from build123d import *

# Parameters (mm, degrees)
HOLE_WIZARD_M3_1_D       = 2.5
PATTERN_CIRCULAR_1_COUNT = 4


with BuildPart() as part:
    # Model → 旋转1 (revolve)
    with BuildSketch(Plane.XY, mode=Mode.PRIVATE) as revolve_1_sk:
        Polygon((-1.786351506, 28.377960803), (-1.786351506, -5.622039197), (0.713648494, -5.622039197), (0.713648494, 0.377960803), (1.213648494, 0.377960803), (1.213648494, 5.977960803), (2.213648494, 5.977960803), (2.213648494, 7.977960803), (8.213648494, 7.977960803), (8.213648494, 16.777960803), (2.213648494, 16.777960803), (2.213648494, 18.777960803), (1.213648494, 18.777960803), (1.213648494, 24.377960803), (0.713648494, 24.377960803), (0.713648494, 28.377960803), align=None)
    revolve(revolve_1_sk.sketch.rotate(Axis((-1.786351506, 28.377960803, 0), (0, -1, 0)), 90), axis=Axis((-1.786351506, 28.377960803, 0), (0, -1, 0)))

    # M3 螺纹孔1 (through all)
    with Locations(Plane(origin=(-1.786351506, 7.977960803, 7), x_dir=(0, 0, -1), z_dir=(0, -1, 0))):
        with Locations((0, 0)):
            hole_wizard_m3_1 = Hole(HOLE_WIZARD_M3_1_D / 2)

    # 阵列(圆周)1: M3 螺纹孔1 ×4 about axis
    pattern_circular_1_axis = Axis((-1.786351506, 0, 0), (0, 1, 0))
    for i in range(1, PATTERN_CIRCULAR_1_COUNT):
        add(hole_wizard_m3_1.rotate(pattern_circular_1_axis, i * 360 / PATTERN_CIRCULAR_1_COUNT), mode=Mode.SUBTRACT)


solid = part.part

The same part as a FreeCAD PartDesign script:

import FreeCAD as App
import Part
import Sketcher

V = App.Vector
Q = App.Units.Quantity

doc = App.newDocument("Part")
body = doc.addObject("PartDesign::Body", "Body")

sketch1 = body.newObject("Sketcher::SketchObject", "Sketch")
sketch1.AttachmentSupport = (doc.getObject("XY_Plane"), [""])
sketch1.MapMode = "FlatFace"
sketch1.addGeometry([
    Part.LineSegment(V(-1.8, 28.4, 0), V(-1.8, -5.6, 0)),
    Part.LineSegment(V(-1.8, -5.6, 0), V(0.7, -5.6, 0)),
    Part.LineSegment(V(0.7, -5.6, 0), V(0.7, 0.4, 0)),
    Part.LineSegment(V(0.7, 0.4, 0), V(1.2, 0.4, 0)),
    Part.LineSegment(V(1.2, 0.4, 0), V(1.2, 6, 0)),
    Part.LineSegment(V(1.2, 6, 0), V(2.2, 6, 0)),
    Part.LineSegment(V(2.2, 6, 0), V(2.2, 8, 0)),
    Part.LineSegment(V(2.2, 8, 0), V(8.2, 8, 0)),
    Part.LineSegment(V(8.2, 8, 0), V(8.2, 16.8, 0)),
    Part.LineSegment(V(8.2, 16.8, 0), V(2.2, 16.8, 0)),
    Part.LineSegment(V(2.2, 16.8, 0), V(2.2, 18.8, 0)),
    Part.LineSegment(V(2.2, 18.8, 0), V(1.2, 18.8, 0)),
    Part.LineSegment(V(1.2, 18.8, 0), V(1.2, 24.4, 0)),
    Part.LineSegment(V(1.2, 24.4, 0), V(0.7, 24.4, 0)),
    Part.LineSegment(V(0.7, 24.4, 0), V(0.7, 28.4, 0)),
    Part.LineSegment(V(0.7, 28.4, 0), V(-1.8, 28.4, 0)),
], False)
sketch1.addGeometry(Part.LineSegment(V(-1.8, 28.4, 0), V(-1.8, -5.6, 0)), True)
sketch1.addConstraint([
    Sketcher.Constraint("Coincident", 0, 2, 1, 1),
    Sketcher.Constraint("Coincident", 1, 2, 2, 1),
    Sketcher.Constraint("Coincident", 2, 2, 3, 1),
    Sketcher.Constraint("Coincident", 3, 2, 4, 1),
    Sketcher.Constraint("Coincident", 4, 2, 5, 1),
    Sketcher.Constraint("Coincident", 5, 2, 6, 1),
    Sketcher.Constraint("Coincident", 6, 2, 7, 1),
    Sketcher.Constraint("Coincident", 7, 2, 8, 1),
    Sketcher.Constraint("Coincident", 8, 2, 9, 1),
    Sketcher.Constraint("Coincident", 9, 2, 10, 1),
    Sketcher.Constraint("Coincident", 10, 2, 11, 1),
    Sketcher.Constraint("Coincident", 11, 2, 12, 1),
    Sketcher.Constraint("Coincident", 12, 2, 13, 1),
    Sketcher.Constraint("Coincident", 13, 2, 14, 1),
    Sketcher.Constraint("Coincident", 14, 2, 15, 1),
    Sketcher.Constraint("Coincident", 15, 2, 0, 1),
    Sketcher.Constraint("Vertical", 0),
    Sketcher.Constraint("Horizontal", 1),
    Sketcher.Constraint("Vertical", 2),
    Sketcher.Constraint("Horizontal", 3),
    Sketcher.Constraint("Vertical", 4),
    Sketcher.Constraint("Horizontal", 5),
    Sketcher.Constraint("Vertical", 6),
    Sketcher.Constraint("Horizontal", 7),
    Sketcher.Constraint("Vertical", 8),
    Sketcher.Constraint("Horizontal", 9),
    Sketcher.Constraint("Vertical", 10),
    Sketcher.Constraint("Horizontal", 11),
    Sketcher.Constraint("Vertical", 12),
    Sketcher.Constraint("Horizontal", 13),
    Sketcher.Constraint("Vertical", 14),
    Sketcher.Constraint("Horizontal", 15),
    Sketcher.Constraint("Vertical", 16),
    Sketcher.Constraint("Coincident", 16, 1, 15, 2),
    Sketcher.Constraint("Horizontal", 1, 2, 16, 2),
    Sketcher.Constraint("Vertical", 6, 2, 9, 2),
    Sketcher.Constraint("Vertical", 4, 2, 11, 2),
    Sketcher.Constraint("Vertical", 2, 2, 13, 2),
    Sketcher.Constraint("Equal", 9, 2),
    Sketcher.Constraint("Equal", 6, 10),
    Sketcher.Constraint("Equal", 4, 12),
    Sketcher.Constraint("DistanceX", 5, 1, 5, 2, Q("1 mm")),
    Sketcher.Constraint("DistanceX", 7, 1, 7, 2, Q("6 mm")),
    Sketcher.Constraint("DistanceY", 0, 2, 0, 1, Q("34 mm")),
    Sketcher.Constraint("DistanceY", 6, 1, 6, 2, Q("2 mm")),
    Sketcher.Constraint("DistanceY", 14, 1, 14, 2, Q("4 mm")),
    Sketcher.Constraint("DistanceX", 1, 1, 1, 2, Q("2.5 mm")),
    Sketcher.Constraint("DistanceX", 3, 1, 3, 2, Q("0.5 mm")),
    Sketcher.Constraint("DistanceY", 4, 1, 4, 2, Q("5.6 mm")),
    Sketcher.Constraint("DistanceX", 0, 2, -1, 1, Q("1.786352 mm")),
    Sketcher.Constraint("DistanceY", 0, 2, -1, 1, Q("5.622039 mm")),
])
revolution = body.newObject("PartDesign::Revolution", "Revolution")
revolution.Profile = sketch1
revolution.ReferenceAxis = (sketch1, ["Axis0"])
revolution.Angle = 360

sketch2 = body.newObject("Sketcher::SketchObject", "Sketch001")
sketch2.AttachmentSupport = (doc.getObject("XZ_Plane"), [""])
sketch2.MapMode = "FlatFace"
sketch2.AttachmentOffset = App.Placement(V(0, 0, -7.977961), App.Rotation())
sketch2.addGeometry(Part.Circle(V(-1.8, 7, 0), V(0, 0, 1), 1.2), False)
sketch2.addConstraint([
    Sketcher.Constraint("Diameter", 0, Q("2.5 mm")),
    Sketcher.Constraint("DistanceY", -1, 1, 0, 3, Q("7 mm")),
    Sketcher.Constraint("DistanceX", 0, 3, -1, 1, Q("1.786352 mm")),
])
doc.recompute()
hole = body.newObject("PartDesign::Hole", "Hole")
hole.Profile = sketch2
hole.ThreadType = "None"
hole.Diameter = 2.5
hole.DepthType = "ThroughAll"
doc.recompute()

datumline = body.newObject("PartDesign::Line", "DatumLine")
datumline.Placement = App.Placement(V(-1.786352, 0, 0), App.Rotation(V(0, 0, 1), V(0, 1, 0)))
polarpattern = body.newObject("PartDesign::PolarPattern", "PolarPattern")
polarpattern.Originals = [hole]
polarpattern.Axis = (datumline, [""])
polarpattern.Angle = 360
polarpattern.Occurrences = 4
body.Tip = polarpattern

doc.recompute()
